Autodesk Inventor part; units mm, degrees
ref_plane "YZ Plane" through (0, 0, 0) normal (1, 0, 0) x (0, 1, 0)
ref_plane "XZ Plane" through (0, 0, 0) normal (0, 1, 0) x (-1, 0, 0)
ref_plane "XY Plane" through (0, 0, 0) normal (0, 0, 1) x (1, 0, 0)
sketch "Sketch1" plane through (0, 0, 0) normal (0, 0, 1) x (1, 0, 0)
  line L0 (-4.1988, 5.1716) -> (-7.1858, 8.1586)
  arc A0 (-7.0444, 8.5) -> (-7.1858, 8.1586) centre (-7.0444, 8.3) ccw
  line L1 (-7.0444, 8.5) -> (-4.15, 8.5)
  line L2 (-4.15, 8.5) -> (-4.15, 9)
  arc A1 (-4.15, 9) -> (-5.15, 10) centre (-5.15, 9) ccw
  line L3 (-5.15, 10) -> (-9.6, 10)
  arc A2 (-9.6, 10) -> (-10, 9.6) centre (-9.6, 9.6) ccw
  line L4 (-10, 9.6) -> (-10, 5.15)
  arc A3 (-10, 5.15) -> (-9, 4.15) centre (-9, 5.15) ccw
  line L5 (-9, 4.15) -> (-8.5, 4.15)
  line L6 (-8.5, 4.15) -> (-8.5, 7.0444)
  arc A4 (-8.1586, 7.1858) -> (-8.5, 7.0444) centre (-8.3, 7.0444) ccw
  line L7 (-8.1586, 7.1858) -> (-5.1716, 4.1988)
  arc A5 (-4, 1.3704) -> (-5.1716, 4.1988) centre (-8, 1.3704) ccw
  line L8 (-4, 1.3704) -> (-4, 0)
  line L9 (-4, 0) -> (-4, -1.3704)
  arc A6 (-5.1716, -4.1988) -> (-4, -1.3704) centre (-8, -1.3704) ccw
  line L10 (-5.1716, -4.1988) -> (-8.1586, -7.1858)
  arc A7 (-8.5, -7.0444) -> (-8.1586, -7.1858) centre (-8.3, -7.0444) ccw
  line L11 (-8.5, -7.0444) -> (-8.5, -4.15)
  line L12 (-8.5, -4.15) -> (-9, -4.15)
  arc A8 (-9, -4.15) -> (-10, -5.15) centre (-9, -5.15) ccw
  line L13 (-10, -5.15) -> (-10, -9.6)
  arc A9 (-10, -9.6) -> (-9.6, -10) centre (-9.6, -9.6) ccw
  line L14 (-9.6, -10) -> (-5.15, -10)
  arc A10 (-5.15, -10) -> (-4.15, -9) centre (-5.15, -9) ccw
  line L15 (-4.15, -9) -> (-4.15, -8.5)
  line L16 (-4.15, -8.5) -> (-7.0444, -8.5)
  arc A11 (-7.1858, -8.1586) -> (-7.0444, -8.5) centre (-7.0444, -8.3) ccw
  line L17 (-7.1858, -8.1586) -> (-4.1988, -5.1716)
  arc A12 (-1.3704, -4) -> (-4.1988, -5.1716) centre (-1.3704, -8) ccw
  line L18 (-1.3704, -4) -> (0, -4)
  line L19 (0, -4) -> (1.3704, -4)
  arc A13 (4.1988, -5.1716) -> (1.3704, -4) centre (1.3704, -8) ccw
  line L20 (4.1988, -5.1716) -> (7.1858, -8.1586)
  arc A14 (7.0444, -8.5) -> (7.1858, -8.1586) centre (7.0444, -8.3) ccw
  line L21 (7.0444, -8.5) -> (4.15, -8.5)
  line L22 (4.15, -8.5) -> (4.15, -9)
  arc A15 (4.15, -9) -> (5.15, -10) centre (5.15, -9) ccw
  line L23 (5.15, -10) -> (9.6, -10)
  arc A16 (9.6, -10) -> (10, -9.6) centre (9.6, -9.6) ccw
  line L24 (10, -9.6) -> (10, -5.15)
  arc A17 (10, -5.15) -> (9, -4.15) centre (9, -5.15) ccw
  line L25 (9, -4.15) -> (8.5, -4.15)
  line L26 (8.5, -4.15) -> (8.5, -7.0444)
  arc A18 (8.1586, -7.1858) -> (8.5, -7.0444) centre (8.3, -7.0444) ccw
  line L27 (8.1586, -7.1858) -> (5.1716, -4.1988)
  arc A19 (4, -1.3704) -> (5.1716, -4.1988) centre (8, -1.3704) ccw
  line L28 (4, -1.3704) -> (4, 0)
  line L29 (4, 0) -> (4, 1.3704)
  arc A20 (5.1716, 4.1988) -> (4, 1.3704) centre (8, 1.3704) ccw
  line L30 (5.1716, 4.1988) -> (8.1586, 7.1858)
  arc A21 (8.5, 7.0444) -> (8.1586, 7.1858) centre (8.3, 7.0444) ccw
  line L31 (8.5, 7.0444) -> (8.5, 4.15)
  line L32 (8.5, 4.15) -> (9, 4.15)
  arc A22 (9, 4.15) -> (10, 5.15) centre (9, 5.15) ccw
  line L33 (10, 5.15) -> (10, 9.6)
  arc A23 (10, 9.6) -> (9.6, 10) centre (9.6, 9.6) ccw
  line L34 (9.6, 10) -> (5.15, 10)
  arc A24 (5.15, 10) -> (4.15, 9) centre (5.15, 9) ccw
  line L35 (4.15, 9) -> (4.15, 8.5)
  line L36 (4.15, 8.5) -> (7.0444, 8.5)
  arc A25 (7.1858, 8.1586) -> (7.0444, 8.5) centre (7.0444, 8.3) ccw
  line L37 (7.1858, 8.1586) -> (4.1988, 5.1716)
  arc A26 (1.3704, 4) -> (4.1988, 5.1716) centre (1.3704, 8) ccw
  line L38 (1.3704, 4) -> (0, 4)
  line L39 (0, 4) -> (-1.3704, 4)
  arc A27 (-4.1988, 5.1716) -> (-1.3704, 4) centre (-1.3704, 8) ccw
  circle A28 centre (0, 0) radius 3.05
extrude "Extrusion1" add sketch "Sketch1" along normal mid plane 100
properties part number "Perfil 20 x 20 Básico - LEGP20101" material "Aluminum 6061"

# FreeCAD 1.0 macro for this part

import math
import FreeCAD as App
import Part
import Sketcher

doc = App.newDocument("Part")
params = doc.addObject("Spreadsheet::Sheet", "Params")
for row, (alias, value) in enumerate([
    ("sketch1_radius", "4 mm"),
    ("sketch1_radius2", "1 mm"),
    ("sketch1_diameter", "6.1 mm"),
    ("sketch1_radius3", "0.2 mm"),
    ("sketch1_radius4", "0.4 mm"),
    ("pad1_length", "100 mm"),
], start=1):
    params.set(f"A{row}", alias)
    params.set(f"B{row}", "=" + value)
    params.setAlias(f"B{row}", alias)

body = doc.addObject("PartDesign::Body", "Body")

sketch1 = doc.addObject("Sketcher::SketchObject", "Sketch")
body.addObject(sketch1)
sketch1.AttachmentSupport = (doc.XY_Plane, [""])
sketch1.MapMode = "FlatFace"
sketch1.addGeometry(Part.ArcOfCircle(Part.Circle(App.Vector(-1.37, 8, 0), App.Vector(0, 0, 1), 4), math.radians(-135), math.radians(-90)), False)
sketch1.addGeometry(Part.LineSegment(App.Vector(-4.2, 5.17, 0), App.Vector(-7.19, 8.16, 0)), False)
sketch1.addGeometry(Part.ArcOfCircle(Part.Circle(App.Vector(-7.04, 8.3, 0), App.Vector(0, 0, 1), 0.2), math.radians(90), math.radians(225)), False)
sketch1.addGeometry(Part.LineSegment(App.Vector(-7.04, 8.5, 0), App.Vector(-4.15, 8.5, 0)), False)
sketch1.addGeometry(Part.LineSegment(App.Vector(-4.15, 8.5, 0), App.Vector(-4.15, 9, 0)), False)
sketch1.addGeometry(Part.ArcOfCircle(Part.Circle(App.Vector(-5.15, 9, 0), App.Vector(0, 0, 1), 1), math.radians(0), math.radians(90)), False)
sketch1.addGeometry(Part.LineSegment(App.Vector(-5.15, 10, 0), App.Vector(-9.6, 10, 0)), False)
sketch1.addGeometry(Part.ArcOfCircle(Part.Circle(App.Vector(-9.6, 9.6, 0), App.Vector(0, 0, 1), 0.4), math.radians(90), math.radians(180)), False)
sketch1.addGeometry(Part.LineSegment(App.Vector(-10, 9.6, 0), App.Vector(-10, 5.15, 0)), False)
sketch1.addGeometry(Part.ArcOfCircle(Part.Circle(App.Vector(-9, 5.15, 0), App.Vector(0, 0, 1), 1), math.radians(180), math.radians(270)), False)
sketch1.addGeometry(Part.LineSegment(App.Vector(-9, 4.15, 0), App.Vector(-8.5, 4.15, 0)), False)
sketch1.addGeometry(Part.LineSegment(App.Vector(-8.5, 4.15, 0), App.Vector(-8.5, 7.04, 0)), False)
sketch1.addGeometry(Part.ArcOfCircle(Part.Circle(App.Vector(-8.3, 7.04, 0), App.Vector(0, 0, 1), 0.2), math.radians(45), math.radians(180)), False)
sketch1.addGeometry(Part.LineSegment(App.Vector(-8.16, 7.19, 0), App.Vector(-5.17, 4.2, 0)), False)
sketch1.addGeometry(Part.ArcOfCircle(Part.Circle(App.Vector(-8, 1.37, 0), App.Vector(0, 0, 1), 4), math.radians(0), math.radians(45)), False)
sketch1.addGeometry(Part.LineSegment(App.Vector(-4, 1.37, 0), App.Vector(-4, -1.37, 0)), False)
sketch1.addGeometry(Part.ArcOfCircle(Part.Circle(App.Vector(-8, -1.37, 0), App.Vector(0, 0, 1), 4), math.radians(-45), math.radians(0)), False)
sketch1.addGeometry(Part.LineSegment(App.Vector(-5.17, -4.2, 0), App.Vector(-8.16, -7.19, 0)), False)
sketch1.addGeometry(Part.ArcOfCircle(Part.Circle(App.Vector(-8.3, -7.04, 0), App.Vector(0, 0, 1), 0.2), math.radians(180), math.radians(315)), False)
sketch1.addGeometry(Part.LineSegment(App.Vector(-8.5, -7.04, 0), App.Vector(-8.5, -4.15, 0)), False)
sketch1.addGeometry(Part.LineSegment(App.Vector(-8.5, -4.15, 0), App.Vector(-9, -4.15, 0)), False)
sketch1.addGeometry(Part.ArcOfCircle(Part.Circle(App.Vector(-9, -5.15, 0), App.Vector(0, 0, 1), 1), math.radians(90), math.radians(180)), False)
sketch1.addGeometry(Part.LineSegment(App.Vector(-10, -5.15, 0), App.Vector(-10, -9.6, 0)), False)
sketch1.addGeometry(Part.ArcOfCircle(Part.Circle(App.Vector(-9.6, -9.6, 0), App.Vector(0, 0, 1), 0.4), math.radians(180), math.radians(270)), False)
sketch1.addGeometry(Part.LineSegment(App.Vector(-9.6, -10, 0), App.Vector(-5.15, -10, 0)), False)
sketch1.addGeometry(Part.ArcOfCircle(Part.Circle(App.Vector(-5.15, -9, 0), App.Vector(0, 0, 1), 1), math.radians(-90), math.radians(0)), False)
sketch1.addGeometry(Part.LineSegment(App.Vector(-4.15, -9, 0), App.Vector(-4.15, -8.5, 0)), False)
sketch1.addGeometry(Part.LineSegment(App.Vector(-4.15, -8.5, 0), App.Vector(-7.04, -8.5, 0)), False)
sketch1.addGeometry(Part.ArcOfCircle(Part.Circle(App.Vector(-7.04, -8.3, 0), App.Vector(0, 0, 1), 0.2), math.radians(135), math.radians(270)), False)
sketch1.addGeometry(Part.LineSegment(App.Vector(-7.19, -8.16, 0), App.Vector(-4.2, -5.17, 0)), False)
sketch1.addGeometry(Part.ArcOfCircle(Part.Circle(App.Vector(-1.37, -8, 0), App.Vector(0, 0, 1), 4), math.radians(90), math.radians(135)), False)
sketch1.addGeometry(Part.LineSegment(App.Vector(-1.37, -4, 0), App.Vector(1.37, -4, 0)), False)
sketch1.addGeometry(Part.ArcOfCircle(Part.Circle(App.Vector(1.37, -8, 0), App.Vector(0, 0, 1), 4), math.radians(45), math.radians(90)), False)
sketch1.addGeometry(Part.LineSegment(App.Vector(4.2, -5.17, 0), App.Vector(7.19, -8.16, 0)), False)
sketch1.addGeometry(Part.ArcOfCircle(Part.Circle(App.Vector(7.04, -8.3, 0), App.Vector(0, 0, 1), 0.2), math.radians(-90), math.radians(45)), False)
sketch1.addGeometry(Part.LineSegment(App.Vector(7.04, -8.5, 0), App.Vector(4.15, -8.5, 0)), False)
sketch1.addGeometry(Part.LineSegment(App.Vector(4.15, -8.5, 0), App.Vector(4.15, -9, 0)), False)
sketch1.addGeometry(Part.ArcOfCircle(Part.Circle(App.Vector(5.15, -9, 0), App.Vector(0, 0, 1), 1), math.radians(180), math.radians(270)), False)
sketch1.addGeometry(Part.LineSegment(App.Vector(5.15, -10, 0), App.Vector(9.6, -10, 0)), False)
sketch1.addGeometry(Part.ArcOfCircle(Part.Circle(App.Vector(9.6, -9.6, 0), App.Vector(0, 0, 1), 0.4), math.radians(-90), math.radians(0)), False)
sketch1.addGeometry(Part.LineSegment(App.Vector(10, -9.6, 0), App.Vector(10, -5.15, 0)), False)
sketch1.addGeometry(Part.ArcOfCircle(Part.Circle(App.Vector(9, -5.15, 0), App.Vector(0, 0, 1), 1), math.radians(0), math.radians(90)), False)
sketch1.addGeometry(Part.LineSegment(App.Vector(9, -4.15, 0), App.Vector(8.5, -4.15, 0)), False)
sketch1.addGeometry(Part.LineSegment(App.Vector(8.5, -4.15, 0), App.Vector(8.5, -7.04, 0)), False)
sketch1.addGeometry(Part.ArcOfCircle(Part.Circle(App.Vector(8.3, -7.04, 0), App.Vector(0, 0, 1), 0.2), math.radians(-135), math.radians(0)), False)
sketch1.addGeometry(Part.LineSegment(App.Vector(8.16, -7.19, 0), App.Vector(5.17, -4.2, 0)), False)
sketch1.addGeometry(Part.ArcOfCircle(Part.Circle(App.Vector(8, -1.37, 0), App.Vector(0, 0, 1), 4), math.radians(180), math.radians(225)), False)
sketch1.addGeometry(Part.LineSegment(App.Vector(4, -1.37, 0), App.Vector(4, 1.37, 0)), False)
sketch1.addGeometry(Part.ArcOfCircle(Part.Circle(App.Vector(8, 1.37, 0), App.Vector(0, 0, 1), 4), math.radians(135), math.radians(180)), False)
sketch1.addGeometry(Part.LineSegment(App.Vector(5.17, 4.2, 0), App.Vector(8.16, 7.19, 0)), False)
sketch1.addGeometry(Part.ArcOfCircle(Part.Circle(App.Vector(8.3, 7.04, 0), App.Vector(0, 0, 1), 0.2), math.radians(0), math.radians(135)), False)
sketch1.addGeometry(Part.LineSegment(App.Vector(8.5, 7.04, 0), App.Vector(8.5, 4.15, 0)), False)
sketch1.addGeometry(Part.LineSegment(App.Vector(8.5, 4.15, 0), App.Vector(9, 4.15, 0)), False)
sketch1.addGeometry(Part.ArcOfCircle(Part.Circle(App.Vector(9, 5.15, 0), App.Vector(0, 0, 1), 1), math.radians(-90), math.radians(0)), False)
sketch1.addGeometry(Part.LineSegment(App.Vector(10, 5.15, 0), App.Vector(10, 9.6, 0)), False)
sketch1.addGeometry(Part.ArcOfCircle(Part.Circle(App.Vector(9.6, 9.6, 0), App.Vector(0, 0, 1), 0.4), math.radians(0), math.radians(90)), False)
sketch1.addGeometry(Part.LineSegment(App.Vector(9.6, 10, 0), App.Vector(5.15, 10, 0)), False)
sketch1.addGeometry(Part.ArcOfCircle(Part.Circle(App.Vector(5.15, 9, 0), App.Vector(0, 0, 1), 1), math.radians(90), math.radians(180)), False)
sketch1.addGeometry(Part.LineSegment(App.Vector(4.15, 9, 0), App.Vector(4.15, 8.5, 0)), False)
sketch1.addGeometry(Part.LineSegment(App.Vector(4.15, 8.5, 0), App.Vector(7.04, 8.5, 0)), False)
sketch1.addGeometry(Part.ArcOfCircle(Part.Circle(App.Vector(7.04, 8.3, 0), App.Vector(0, 0, 1), 0.2), math.radians(-45), math.radians(90)), False)
sketch1.addGeometry(Part.LineSegment(App.Vector(7.19, 8.16, 0), App.Vector(4.2, 5.17, 0)), False)
sketch1.addGeometry(Part.ArcOfCircle(Part.Circle(App.Vector(1.37, 8, 0), App.Vector(0, 0, 1), 4), math.radians(-90), math.radians(-45)), False)
sketch1.addGeometry(Part.LineSegment(App.Vector(1.37, 4, 0), App.Vector(-1.37, 4, 0)), False)
sketch1.addGeometry(Part.Circle(App.Vector(0, 0, 0), App.Vector(0, 0, 1), 3.05), False)
sketch1.addConstraint(Sketcher.Constraint("Tangent", 0, 1, 1, 1))
sketch1.addConstraint(Sketcher.Constraint("Tangent", 1, 2, 2, 2))
sketch1.addConstraint(Sketcher.Constraint("Tangent", 2, 1, 3, 1))
sketch1.addConstraint(Sketcher.Constraint("Coincident", 3, 2, 4, 1))
sketch1.addConstraint(Sketcher.Constraint("Tangent", 4, 2, 5, 1))
sketch1.addConstraint(Sketcher.Constraint("Tangent", 5, 2, 6, 1))
sketch1.addConstraint(Sketcher.Constraint("Tangent", 6, 2, 7, 1))
sketch1.addConstraint(Sketcher.Constraint("Tangent", 7, 2, 8, 1))
sketch1.addConstraint(Sketcher.Constraint("Tangent", 8, 2, 9, 1))
sketch1.addConstraint(Sketcher.Constraint("Tangent", 9, 2, 10, 1))
sketch1.addConstraint(Sketcher.Constraint("Coincident", 10, 2, 11, 1))
sketch1.addConstraint(Sketcher.Constraint("Tangent", 11, 2, 12, 2))
sketch1.addConstraint(Sketcher.Constraint("Tangent", 12, 1, 13, 1))
sketch1.addConstraint(Sketcher.Constraint("Tangent", 13, 2, 14, 2))
sketch1.addConstraint(Sketcher.Constraint("Tangent", 14, 1, 15, 1))
sketch1.addConstraint(Sketcher.Constraint("Tangent", 15, 2, 16, 2))
sketch1.addConstraint(Sketcher.Constraint("Tangent", 16, 1, 17, 1))
sketch1.addConstraint(Sketcher.Constraint("Tangent", 17, 2, 18, 2))
sketch1.addConstraint(Sketcher.Constraint("Tangent", 18, 1, 19, 1))
sketch1.addConstraint(Sketcher.Constraint("Coincident", 19, 2, 20, 1))
sketch1.addConstraint(Sketcher.Constraint("Tangent", 20, 2, 21, 1))
sketch1.addConstraint(Sketcher.Constraint("Tangent", 21, 2, 22, 1))
sketch1.addConstraint(Sketcher.Constraint("Tangent", 22, 2, 23, 1))
sketch1.addConstraint(Sketcher.Constraint("Tangent", 23, 2, 24, 1))
sketch1.addConstraint(Sketcher.Constraint("Tangent", 24, 2, 25, 1))
sketch1.addConstraint(Sketcher.Constraint("Tangent", 25, 2, 26, 1))
sketch1.addConstraint(Sketcher.Constraint("Coincident", 26, 2, 27, 1))
sketch1.addConstraint(Sketcher.Constraint("Tangent", 27, 2, 28, 2))
sketch1.addConstraint(Sketcher.Constraint("Tangent", 28, 1, 29, 1))
sketch1.addConstraint(Sketcher.Constraint("Tangent", 29, 2, 30, 2))
sketch1.addConstraint(Sketcher.Constraint("Tangent", 30, 1, 31, 1))
sketch1.addConstraint(Sketcher.Constraint("Tangent", 31, 2, 32, 2))
sketch1.addConstraint(Sketcher.Constraint("Tangent", 32, 1, 33, 1))
sketch1.addConstraint(Sketcher.Constraint("Tangent", 33, 2, 34, 2))
sketch1.addConstraint(Sketcher.Constraint("Tangent", 34, 1, 35, 1))
sketch1.addConstraint(Sketcher.Constraint("Coincident", 35, 2, 36, 1))
sketch1.addConstraint(Sketcher.Constraint("Tangent", 36, 2, 37, 1))
sketch1.addConstraint(Sketcher.Constraint("Tangent", 37, 2, 38, 1))
sketch1.addConstraint(Sketcher.Constraint("Tangent", 38, 2, 39, 1))
sketch1.addConstraint(Sketcher.Constraint("Tangent", 39, 2, 40, 1))
sketch1.addConstraint(Sketcher.Constraint("Tangent", 40, 2, 41, 1))
sketch1.addConstraint(Sketcher.Constraint("Tangent", 41, 2, 42, 1))
sketch1.addConstraint(Sketcher.Constraint("Coincident", 42, 2, 43, 1))
sketch1.addConstraint(Sketcher.Constraint("Tangent", 43, 2, 44, 2))
sketch1.addConstraint(Sketcher.Constraint("Tangent", 44, 1, 45, 1))
sketch1.addConstraint(Sketcher.Constraint("Tangent", 45, 2, 46, 2))
sketch1.addConstraint(Sketcher.Constraint("Tangent", 46, 1, 47, 1))
sketch1.addConstraint(Sketcher.Constraint("Tangent", 47, 2, 48, 2))
sketch1.addConstraint(Sketcher.Constraint("Tangent", 48, 1, 49, 1))
sketch1.addConstraint(Sketcher.Constraint("Tangent", 49, 2, 50, 2))
sketch1.addConstraint(Sketcher.Constraint("Tangent", 50, 1, 51, 1))
sketch1.addConstraint(Sketcher.Constraint("Coincident", 51, 2, 52, 1))
sketch1.addConstraint(Sketcher.Constraint("Tangent", 52, 2, 53, 1))
sketch1.addConstraint(Sketcher.Constraint("Tangent", 53, 2, 54, 1))
sketch1.addConstraint(Sketcher.Constraint("Tangent", 54, 2, 55, 1))
sketch1.addConstraint(Sketcher.Constraint("Tangent", 55, 2, 56, 1))
sketch1.addConstraint(Sketcher.Constraint("Tangent", 56, 2, 57, 1))
sketch1.addConstraint(Sketcher.Constraint("Tangent", 57, 2, 58, 1))
sketch1.addConstraint(Sketcher.Constraint("Coincident", 58, 2, 59, 1))
sketch1.addConstraint(Sketcher.Constraint("Tangent", 59, 2, 60, 2))
sketch1.addConstraint(Sketcher.Constraint("Tangent", 60, 1, 61, 1))
sketch1.addConstraint(Sketcher.Constraint("Tangent", 61, 2, 62, 2))
sketch1.addConstraint(Sketcher.Constraint("Tangent", 62, 1, 63, 1))
sketch1.addConstraint(Sketcher.Constraint("Tangent", 63, 2, 0, 2))
sketch1.addConstraint(Sketcher.Constraint("Horizontal", 3))
sketch1.addConstraint(Sketcher.Constraint("Vertical", 4))
sketch1.addConstraint(Sketcher.Constraint("Horizontal", 6))
sketch1.addConstraint(Sketcher.Constraint("Vertical", 8))
sketch1.addConstraint(Sketcher.Constraint("Horizontal", 10))
sketch1.addConstraint(Sketcher.Constraint("Vertical", 11))
sketch1.addConstraint(Sketcher.Constraint("Vertical", 15))
sketch1.addConstraint(Sketcher.Constraint("Vertical", 19))
sketch1.addConstraint(Sketcher.Constraint("Horizontal", 20))
sketch1.addConstraint(Sketcher.Constraint("Vertical", 22))
sketch1.addConstraint(Sketcher.Constraint("Horizontal", 24))
sketch1.addConstraint(Sketcher.Constraint("Vertical", 26))
sketch1.addConstraint(Sketcher.Constraint("Horizontal", 27))
sketch1.addConstraint(Sketcher.Constraint("Horizontal", 31))
sketch1.addConstraint(Sketcher.Constraint("Horizontal", 35))
sketch1.addConstraint(Sketcher.Constraint("Vertical", 36))
sketch1.addConstraint(Sketcher.Constraint("Horizontal", 38))
sketch1.addConstraint(Sketcher.Constraint("Vertical", 40))
sketch1.addConstraint(Sketcher.Constraint("Horizontal", 42))
sketch1.addConstraint(Sketcher.Constraint("Vertical", 43))
sketch1.addConstraint(Sketcher.Constraint("Vertical", 47))
sketch1.addConstraint(Sketcher.Constraint("Vertical", 51))
sketch1.addConstraint(Sketcher.Constraint("Horizontal", 52))
sketch1.addConstraint(Sketcher.Constraint("Vertical", 54))
sketch1.addConstraint(Sketcher.Constraint("Horizontal", 56))
sketch1.addConstraint(Sketcher.Constraint("Vertical", 58))
sketch1.addConstraint(Sketcher.Constraint("Horizontal", 59))
sketch1.addConstraint(Sketcher.Constraint("Horizontal", 63))
sketch1.addConstraint(Sketcher.Constraint("Coincident", 64, 3, -1, 1))
sketch1.addConstraint(Sketcher.Constraint("Equal", 5, 9))
sketch1.addConstraint(Sketcher.Constraint("Equal", 2, 12))
sketch1.addConstraint(Sketcher.Constraint("Equal", 0, 14))
sketch1.addConstraint(Sketcher.Constraint("Equal", 14, 16))
sketch1.addConstraint(Sketcher.Constraint("Equal", 12, 18))
sketch1.addConstraint(Sketcher.Constraint("Equal", 9, 21))
sketch1.addConstraint(Sketcher.Constraint("Equal", 7, 23))
sketch1.addConstraint(Sketcher.Constraint("Equal", 21, 25))
sketch1.addConstraint(Sketcher.Constraint("Equal", 18, 28))
sketch1.addConstraint(Sketcher.Constraint("Equal", 16, 30))
sketch1.addConstraint(Sketcher.Constraint("Equal", 30, 32))
sketch1.addConstraint(Sketcher.Constraint("Equal", 28, 34))
sketch1.addConstraint(Sketcher.Constraint("Equal", 25, 37))
sketch1.addConstraint(Sketcher.Constraint("Equal", 23, 39))
sketch1.addConstraint(Sketcher.Constraint("Equal", 37, 41))
sketch1.addConstraint(Sketcher.Constraint("Equal", 34, 44))
sketch1.addConstraint(Sketcher.Constraint("Equal", 32, 46))
sketch1.addConstraint(Sketcher.Constraint("Equal", 46, 48))
sketch1.addConstraint(Sketcher.Constraint("Equal", 44, 50))
sketch1.addConstraint(Sketcher.Constraint("Equal", 41, 53))
sketch1.addConstraint(Sketcher.Constraint("Equal", 39, 55))
sketch1.addConstraint(Sketcher.Constraint("Equal", 53, 57))
sketch1.addConstraint(Sketcher.Constraint("Equal", 50, 60))
sketch1.addConstraint(Sketcher.Constraint("Equal", 48, 62))
sketch1.addConstraint(Sketcher.Constraint("Symmetric", 0, 3, 32, 3, -1, 1))
sketch1.addConstraint(Sketcher.Constraint("Symmetric", 2, 3, 34, 3, -1, 1))
sketch1.addConstraint(Sketcher.Constraint("Symmetric", 5, 3, 37, 3, -1, 1))
sketch1.addConstraint(Sketcher.Constraint("Symmetric", 9, 3, 41, 3, -1, 1))
sketch1.addConstraint(Sketcher.Constraint("Symmetric", 12, 3, 44, 3, -1, 1))
sketch1.addConstraint(Sketcher.Constraint("Symmetric", 14, 3, 46, 3, -1, 1))
sketch1.addConstraint(Sketcher.Constraint("Symmetric", 18, 3, 50, 3, -1, 1))
sketch1.addConstraint(Sketcher.Constraint("Symmetric", 21, 3, 53, 3, -1, 1))
sketch1.addConstraint(Sketcher.Constraint("Symmetric", 25, 3, 57, 3, -1, 1))
sketch1.addConstraint(Sketcher.Constraint("Symmetric", 28, 3, 60, 3, -1, 1))
sketch1.addConstraint(Sketcher.Constraint("Symmetric", 28, 3, 34, 3, -2))
sketch1.addConstraint(Sketcher.Constraint("Symmetric", 25, 3, 37, 3, -2))
sketch1.addConstraint(Sketcher.Constraint("Symmetric", 21, 3, 41, 3, -2))
sketch1.addConstraint(Sketcher.Constraint("Symmetric", 18, 3, 44, 3, -2))
sketch1.addConstraint(Sketcher.Constraint("Parallel", 1, 13))
sketch1.addConstraint(Sketcher.Constraint("Perpendicular", 13, 17))
sketch1.addConstraint(Sketcher.Constraint("Parallel", 17, 29))
sketch1.addConstraint(Sketcher.Constraint("Perpendicular", 45, 49))
sketch1.addConstraint(Sketcher.Constraint("Parallel", 49, 61))
sketch1.addConstraint(Sketcher.Constraint("Horizontal", 16, 3, 46, 3))
sketch1.addConstraint(Sketcher.Constraint("Equal", 52, 4))
sketch1.addConstraint(Sketcher.Constraint("Equal", 56, 8))
sketch1.addConstraint(Sketcher.Constraint("Equal", 59, 11))
sketch1.addConstraint(Sketcher.Constraint("Equal", 63, 15))
sketch1.addConstraint(Sketcher.Constraint("Equal", 1, 13))
sketch1.addConstraint(Sketcher.Constraint("Radius", 0, 4.0))
sketch1.addConstraint(Sketcher.Constraint("Radius", 5, 1.0))
sketch1.addConstraint(Sketcher.Constraint("Diameter", 64, 6.1))
sketch1.addConstraint(Sketcher.Constraint("Radius", 2, 0.2))
sketch1.addConstraint(Sketcher.Constraint("Radius", 7, 0.4))
sketch1.addConstraint(Sketcher.Constraint("DistanceX", 10, 1, 10, 2, 0.5))
sketch1.addConstraint(Sketcher.Constraint("DistanceY", -1, 1, 0, 3, 8.0))
sketch1.addConstraint(Sketcher.Constraint("DistanceY", -1, 1, 5, 3, 9.0))
sketch1.addConstraint(Sketcher.Constraint("DistanceX", 6, 2, 6, 1, 4.45))
sketch1.addConstraint(Sketcher.Constraint("DistanceX", 3, 1, 3, 2, 2.8944))
sketch1.setExpression("Constraints[142]", "Params.sketch1_radius")
sketch1.setExpression("Constraints[143]", "Params.sketch1_radius2")
sketch1.setExpression("Constraints[144]", "Params.sketch1_diameter")
sketch1.setExpression("Constraints[145]", "Params.sketch1_radius3")
sketch1.setExpression("Constraints[146]", "Params.sketch1_radius4")
pad1 = doc.addObject("PartDesign::Pad", "Pad")
body.addObject(pad1)
pad1.Profile = sketch1
pad1.setExpression("Length", "Params.pad1_length")
pad1.Midplane = True

doc.recompute()
